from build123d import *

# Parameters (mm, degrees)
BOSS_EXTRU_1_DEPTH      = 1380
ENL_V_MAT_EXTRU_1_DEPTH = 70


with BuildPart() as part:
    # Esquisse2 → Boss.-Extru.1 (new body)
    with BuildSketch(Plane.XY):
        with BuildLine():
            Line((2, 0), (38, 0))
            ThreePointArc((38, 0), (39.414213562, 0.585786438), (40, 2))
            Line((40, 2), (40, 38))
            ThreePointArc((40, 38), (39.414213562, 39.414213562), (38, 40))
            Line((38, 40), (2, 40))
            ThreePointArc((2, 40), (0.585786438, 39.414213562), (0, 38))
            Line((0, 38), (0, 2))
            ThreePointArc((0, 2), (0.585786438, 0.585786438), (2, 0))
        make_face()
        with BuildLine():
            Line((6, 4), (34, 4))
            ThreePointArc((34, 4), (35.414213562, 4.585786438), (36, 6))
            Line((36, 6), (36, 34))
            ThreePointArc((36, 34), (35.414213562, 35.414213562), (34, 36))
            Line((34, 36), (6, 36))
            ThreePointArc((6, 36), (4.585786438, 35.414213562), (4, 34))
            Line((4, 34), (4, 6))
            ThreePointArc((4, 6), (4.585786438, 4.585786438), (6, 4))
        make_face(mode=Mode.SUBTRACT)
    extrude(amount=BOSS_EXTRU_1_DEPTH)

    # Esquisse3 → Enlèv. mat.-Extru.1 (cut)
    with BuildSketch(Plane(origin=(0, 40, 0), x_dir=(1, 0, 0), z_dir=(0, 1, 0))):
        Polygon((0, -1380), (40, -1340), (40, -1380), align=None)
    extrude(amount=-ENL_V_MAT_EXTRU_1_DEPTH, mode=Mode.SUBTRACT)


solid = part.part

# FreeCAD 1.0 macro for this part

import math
import FreeCAD as App
import Part
import Sketcher
from FreeCAD import Vector

doc = App.newDocument("Part")
body = doc.addObject("PartDesign::Body", "Body")

# Sketch on XY plane
sketch1 = body.newObject("Sketcher::SketchObject", "Sketch")
sketch1.AttachmentSupport = (doc.getObject("XY_Plane"), [""])
sketch1.MapMode = "FlatFace"
sketch1.addGeometry([
    Part.LineSegment(Vector(2, 0, 0), Vector(38, 0, 0)),  # 0
    Part.ArcOfCircle(Part.Circle(Vector(38, 2, 0), Vector(0, 0, 1), 2), math.radians(-90), math.radians(0)),  # 1
    Part.LineSegment(Vector(40, 2, 0), Vector(40, 38, 0)),  # 2
    Part.ArcOfCircle(Part.Circle(Vector(38, 38, 0), Vector(0, 0, 1), 2), math.radians(0), math.radians(90)),  # 3
    Part.LineSegment(Vector(38, 40, 0), Vector(2, 40, 0)),  # 4
    Part.ArcOfCircle(Part.Circle(Vector(2, 38, 0), Vector(0, 0, 1), 2), math.radians(90), math.radians(180)),  # 5
    Part.LineSegment(Vector(0, 38, 0), Vector(0, 2, 0)),  # 6
    Part.ArcOfCircle(Part.Circle(Vector(2, 2, 0), Vector(0, 0, 1), 2), math.radians(-180), math.radians(-90)),  # 7
    Part.LineSegment(Vector(34, 4, 0), Vector(6, 4, 0)),  # 8
    Part.ArcOfCircle(Part.Circle(Vector(6, 6, 0), Vector(0, 0, 1), 2), math.radians(-180), math.radians(-90)),  # 9
    Part.LineSegment(Vector(4, 6, 0), Vector(4, 34, 0)),  # 10
    Part.ArcOfCircle(Part.Circle(Vector(6, 34, 0), Vector(0, 0, 1), 2), math.radians(90), math.radians(180)),  # 11
    Part.LineSegment(Vector(6, 36, 0), Vector(34, 36, 0)),  # 12
    Part.ArcOfCircle(Part.Circle(Vector(34, 34, 0), Vector(0, 0, 1), 2), math.radians(0), math.radians(90)),  # 13
    Part.LineSegment(Vector(36, 34, 0), Vector(36, 6, 0)),  # 14
    Part.ArcOfCircle(Part.Circle(Vector(34, 6, 0), Vector(0, 0, 1), 2), math.radians(-90), math.radians(0)),  # 15
], False)
sketch1.addConstraint([
    Sketcher.Constraint("Tangent", 0, 2, 1, 1),
    Sketcher.Constraint("Tangent", 1, 2, 2, 1),
    Sketcher.Constraint("Tangent", 2, 2, 3, 1),
    Sketcher.Constraint("Tangent", 3, 2, 4, 1),
    Sketcher.Constraint("Tangent", 4, 2, 5, 1),
    Sketcher.Constraint("Tangent", 5, 2, 6, 1),
    Sketcher.Constraint("Tangent", 6, 2, 7, 1),
    Sketcher.Constraint("Tangent", 7, 2, 0, 1),
    Sketcher.Constraint("Tangent", 8, 2, 9, 2),
    Sketcher.Constraint("Tangent", 9, 1, 10, 1),
    Sketcher.Constraint("Tangent", 10, 2, 11, 2),
    Sketcher.Constraint("Tangent", 11, 1, 12, 1),
    Sketcher.Constraint("Tangent", 12, 2, 13, 2),
    Sketcher.Constraint("Tangent", 13, 1, 14, 1),
    Sketcher.Constraint("Tangent", 14, 2, 15, 2),
    Sketcher.Constraint("Tangent", 15, 1, 8, 1),
    Sketcher.Constraint("Horizontal", 0),
    Sketcher.Constraint("Vertical", 2),
    Sketcher.Constraint("Horizontal", 4),
    Sketcher.Constraint("Vertical", 6),
    Sketcher.Constraint("Horizontal", 8),
    Sketcher.Constraint("Vertical", 10),
    Sketcher.Constraint("Horizontal", 12),
    Sketcher.Constraint("Vertical", 14),
    Sketcher.Constraint("Equal", 1, 3),
    Sketcher.Constraint("Equal", 3, 5),
    Sketcher.Constraint("Equal", 5, 7),
    Sketcher.Constraint("Equal", 7, 9),
    Sketcher.Constraint("Equal", 9, 11),
    Sketcher.Constraint("Equal", 11, 13),
    Sketcher.Constraint("Equal", 13, 15),
    Sketcher.Constraint("PointOnObject", 0, 2, -1),
    Sketcher.Constraint("PointOnObject", 5, 2, -2),
    Sketcher.Constraint("Equal", 4, 2),
    Sketcher.Constraint("Equal", 12, 10),
    Sketcher.Constraint("Radius", 1, 2.0),
    Sketcher.Constraint("DistanceX", 0, 1, 0, 2, 36.0),
    Sketcher.Constraint("DistanceX", 8, 2, 8, 1, 28.0),
    Sketcher.Constraint("DistanceX", -1, 1, 9, 3, 6.0),
    Sketcher.Constraint("DistanceY", -1, 1, 9, 3, 6.0),
])
pad1 = body.newObject("PartDesign::Pad", "Pad")
pad1.Profile = sketch1
pad1.Length = 1380

# Sketch on XZ plane
sketch2 = body.newObject("Sketcher::SketchObject", "Sketch001")
sketch2.AttachmentSupport = (doc.getObject("XZ_Plane"), [""])
sketch2.MapMode = "FlatFace"
sketch2.AttachmentOffset = App.Placement(Vector(0, 0, -40), App.Rotation())
sketch2.addGeometry([
    Part.LineSegment(Vector(40, 1340, 0), Vector(0, 1380, 0)),
    Part.LineSegment(Vector(0, 1380, 0), Vector(40, 1380, 0)),
    Part.LineSegment(Vector(40, 1380, 0), Vector(40, 1340, 0)),
], False)
sketch2.addConstraint([
    Sketcher.Constraint("Coincident", 0, 2, 1, 1),
    Sketcher.Constraint("Coincident", 1, 2, 2, 1),
    Sketcher.Constraint("Coincident", 2, 2, 0, 1),
    Sketcher.Constraint("Horizontal", 1),
    Sketcher.Constraint("Vertical", 2),
    Sketcher.Constraint("PointOnObject", 0, 2, -2),
    Sketcher.Constraint("Equal", 1, 2),
    Sketcher.Constraint("DistanceX", 1, 1, 1, 2, 40.0),
    Sketcher.Constraint("DistanceY", -1, 1, 0, 2, 1380.0),
])
pocket1 = body.newObject("PartDesign::Pocket", "Pocket")
pocket1.Profile = sketch2
pocket1.Length = 70
pocket1.Reversed = True

doc.recompute()
